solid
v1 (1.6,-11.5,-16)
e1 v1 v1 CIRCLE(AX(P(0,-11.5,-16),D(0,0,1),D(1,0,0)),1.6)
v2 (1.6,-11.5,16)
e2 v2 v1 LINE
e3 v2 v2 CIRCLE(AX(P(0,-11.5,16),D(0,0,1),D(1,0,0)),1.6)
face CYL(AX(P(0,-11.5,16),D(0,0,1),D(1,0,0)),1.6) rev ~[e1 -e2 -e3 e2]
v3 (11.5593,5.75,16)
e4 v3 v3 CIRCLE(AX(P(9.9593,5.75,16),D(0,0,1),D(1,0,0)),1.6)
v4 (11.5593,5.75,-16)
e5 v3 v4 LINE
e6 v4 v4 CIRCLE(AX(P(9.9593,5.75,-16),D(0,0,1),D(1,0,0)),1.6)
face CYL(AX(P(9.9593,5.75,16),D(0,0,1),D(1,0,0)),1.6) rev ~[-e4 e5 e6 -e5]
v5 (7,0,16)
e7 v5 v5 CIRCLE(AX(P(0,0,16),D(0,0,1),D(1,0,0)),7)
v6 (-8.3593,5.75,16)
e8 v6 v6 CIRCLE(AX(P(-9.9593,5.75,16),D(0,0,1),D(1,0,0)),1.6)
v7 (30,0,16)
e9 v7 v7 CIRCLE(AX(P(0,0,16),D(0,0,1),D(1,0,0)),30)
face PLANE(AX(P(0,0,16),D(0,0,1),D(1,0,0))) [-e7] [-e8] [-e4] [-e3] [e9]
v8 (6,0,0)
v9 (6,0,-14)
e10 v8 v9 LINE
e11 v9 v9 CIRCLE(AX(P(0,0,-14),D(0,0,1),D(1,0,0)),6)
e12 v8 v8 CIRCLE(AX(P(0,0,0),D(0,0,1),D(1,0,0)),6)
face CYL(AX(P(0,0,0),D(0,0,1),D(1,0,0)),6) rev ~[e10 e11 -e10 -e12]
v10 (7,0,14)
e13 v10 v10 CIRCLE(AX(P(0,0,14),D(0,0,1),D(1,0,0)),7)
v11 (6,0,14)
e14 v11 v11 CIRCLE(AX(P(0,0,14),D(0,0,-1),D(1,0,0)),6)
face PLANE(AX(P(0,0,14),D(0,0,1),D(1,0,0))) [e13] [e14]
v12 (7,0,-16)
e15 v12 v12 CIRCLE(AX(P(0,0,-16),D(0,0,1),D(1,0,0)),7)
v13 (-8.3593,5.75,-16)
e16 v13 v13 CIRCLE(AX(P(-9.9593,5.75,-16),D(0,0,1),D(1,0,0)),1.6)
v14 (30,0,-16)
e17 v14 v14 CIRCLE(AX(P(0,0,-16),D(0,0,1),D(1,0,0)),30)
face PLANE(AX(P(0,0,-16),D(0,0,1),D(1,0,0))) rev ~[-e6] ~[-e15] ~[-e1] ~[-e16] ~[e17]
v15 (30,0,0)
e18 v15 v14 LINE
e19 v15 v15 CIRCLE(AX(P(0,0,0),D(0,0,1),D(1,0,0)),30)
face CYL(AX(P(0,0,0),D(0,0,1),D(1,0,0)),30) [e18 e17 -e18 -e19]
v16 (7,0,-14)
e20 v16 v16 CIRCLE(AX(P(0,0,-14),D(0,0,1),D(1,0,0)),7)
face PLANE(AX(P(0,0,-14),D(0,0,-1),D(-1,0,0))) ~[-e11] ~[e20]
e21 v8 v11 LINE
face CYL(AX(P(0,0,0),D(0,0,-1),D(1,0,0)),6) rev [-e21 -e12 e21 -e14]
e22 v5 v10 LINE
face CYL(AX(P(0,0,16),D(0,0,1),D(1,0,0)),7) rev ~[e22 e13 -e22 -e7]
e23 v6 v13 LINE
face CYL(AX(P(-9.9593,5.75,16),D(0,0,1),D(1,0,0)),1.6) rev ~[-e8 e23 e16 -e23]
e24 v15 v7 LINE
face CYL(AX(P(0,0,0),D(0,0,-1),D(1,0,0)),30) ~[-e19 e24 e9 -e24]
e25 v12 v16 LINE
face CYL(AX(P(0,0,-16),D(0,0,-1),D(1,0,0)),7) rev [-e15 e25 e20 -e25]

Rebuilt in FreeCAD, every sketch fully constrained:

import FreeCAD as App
import Part
import Sketcher

doc = App.newDocument("Part")
params = doc.addObject("Spreadsheet::Sheet", "Params")
for row, (alias, value) in enumerate([
    ("sketch1_diameter", "60 mm"),
    ("sketch1_diameter2", "12 mm"),
    ("pad1_length", "32 mm"),
    ("sketch2_diameter", "3.2 mm"),
    ("sketch3_diameter", "14 mm"),
    ("pocket2_length", "2 mm"),
], start=1):
    params.set(f"A{row}", alias)
    params.set(f"B{row}", "=" + value)
    params.setAlias(f"B{row}", alias)

body = doc.addObject("PartDesign::Body", "Body")

sketch1 = body.newObject("Sketcher::SketchObject", "Sketch")
sketch1.AttachmentSupport = (doc.getObject("XY_Plane"), [""])
sketch1.MapMode = "FlatFace"
sketch1.addGeometry([
    Part.Circle(App.Vector(0, 0, 0), App.Vector(0, 0, 1), 30),
    Part.Circle(App.Vector(0, 0, 0), App.Vector(0, 0, 1), 6),
], False)
sketch1.addConstraint([
    Sketcher.Constraint("Coincident", 0, 3, -1, 1),
    Sketcher.Constraint("Coincident", 1, 3, -1, 1),
    Sketcher.Constraint("Diameter", 0, 60.0),
    Sketcher.Constraint("Diameter", 1, 12.0),
])
sketch1.setExpression("Constraints[2]", "Params.sketch1_diameter")
sketch1.setExpression("Constraints[3]", "Params.sketch1_diameter2")
pad1 = body.newObject("PartDesign::Pad", "Pad")
pad1.Profile = sketch1
pad1.setExpression("Length", "Params.pad1_length")
pad1.Midplane = True

sketch2 = body.newObject("Sketcher::SketchObject", "Sketch001")
sketch2.AttachmentSupport = (doc.getObject("XY_Plane"), [""])
sketch2.MapMode = "FlatFace"
sketch2.AttachmentOffset = App.Placement(App.Vector(0, 0, 16), App.Rotation())
sketch2.addGeometry([
    Part.Circle(App.Vector(-10, 5.8, 0), App.Vector(0, 0, 1), 1.6),
    Part.Circle(App.Vector(0, -11.5, 0), App.Vector(0, 0, 1), 1.6),
    Part.Circle(App.Vector(10, 5.8, 0), App.Vector(0, 0, 1), 1.6),
], False)
sketch2.addConstraint([
    Sketcher.Constraint("Equal", 0, 1),
    Sketcher.Constraint("Equal", 1, 2),
    Sketcher.Constraint("Symmetric", 0, 3, 2, 3, -2),
    Sketcher.Constraint("PointOnObject", 1, 3, -2),
    Sketcher.Constraint("Diameter", 0, 3.2),
    Sketcher.Constraint("DistanceY", 1, 3, -1, 1, 11.5),
    Sketcher.Constraint("DistanceY", -1, 1, 0, 3, 5.75),
    Sketcher.Constraint("DistanceX", 0, 3, -1, 1, 9.9593),
])
sketch2.setExpression("Constraints[4]", "Params.sketch2_diameter")
pocket1 = body.newObject("PartDesign::Pocket", "Pocket")
pocket1.Profile = sketch2
pocket1.Type = "ThroughAll"

sketch3 = body.newObject("Sketcher::SketchObject", "Sketch002")
sketch3.AttachmentSupport = (doc.getObject("XY_Plane"), [""])
sketch3.MapMode = "FlatFace"
sketch3.AttachmentOffset = App.Placement(App.Vector(0, 0, 16), App.Rotation())
sketch3.addGeometry(Part.Circle(App.Vector(0, 0, 0), App.Vector(0, 0, 1), 7), False)
sketch3.addConstraint([
    Sketcher.Constraint("Coincident", 0, 3, -1, 1),
    Sketcher.Constraint("Diameter", 0, 14.0),
])
sketch3.setExpression("Constraints[1]", "Params.sketch3_diameter")
pocket2 = body.newObject("PartDesign::Pocket", "Pocket001")
pocket2.Profile = sketch3
pocket2.setExpression("Length", "Params.pocket2_length")
doc.recompute()

mirrored = body.newObject("PartDesign::Mirrored", "Mirrored")
mirrored.Originals = [pocket2]
mirrored.MirrorPlane = (doc.getObject("XY_Plane"), [""])
body.Tip = mirrored

doc.recompute()
